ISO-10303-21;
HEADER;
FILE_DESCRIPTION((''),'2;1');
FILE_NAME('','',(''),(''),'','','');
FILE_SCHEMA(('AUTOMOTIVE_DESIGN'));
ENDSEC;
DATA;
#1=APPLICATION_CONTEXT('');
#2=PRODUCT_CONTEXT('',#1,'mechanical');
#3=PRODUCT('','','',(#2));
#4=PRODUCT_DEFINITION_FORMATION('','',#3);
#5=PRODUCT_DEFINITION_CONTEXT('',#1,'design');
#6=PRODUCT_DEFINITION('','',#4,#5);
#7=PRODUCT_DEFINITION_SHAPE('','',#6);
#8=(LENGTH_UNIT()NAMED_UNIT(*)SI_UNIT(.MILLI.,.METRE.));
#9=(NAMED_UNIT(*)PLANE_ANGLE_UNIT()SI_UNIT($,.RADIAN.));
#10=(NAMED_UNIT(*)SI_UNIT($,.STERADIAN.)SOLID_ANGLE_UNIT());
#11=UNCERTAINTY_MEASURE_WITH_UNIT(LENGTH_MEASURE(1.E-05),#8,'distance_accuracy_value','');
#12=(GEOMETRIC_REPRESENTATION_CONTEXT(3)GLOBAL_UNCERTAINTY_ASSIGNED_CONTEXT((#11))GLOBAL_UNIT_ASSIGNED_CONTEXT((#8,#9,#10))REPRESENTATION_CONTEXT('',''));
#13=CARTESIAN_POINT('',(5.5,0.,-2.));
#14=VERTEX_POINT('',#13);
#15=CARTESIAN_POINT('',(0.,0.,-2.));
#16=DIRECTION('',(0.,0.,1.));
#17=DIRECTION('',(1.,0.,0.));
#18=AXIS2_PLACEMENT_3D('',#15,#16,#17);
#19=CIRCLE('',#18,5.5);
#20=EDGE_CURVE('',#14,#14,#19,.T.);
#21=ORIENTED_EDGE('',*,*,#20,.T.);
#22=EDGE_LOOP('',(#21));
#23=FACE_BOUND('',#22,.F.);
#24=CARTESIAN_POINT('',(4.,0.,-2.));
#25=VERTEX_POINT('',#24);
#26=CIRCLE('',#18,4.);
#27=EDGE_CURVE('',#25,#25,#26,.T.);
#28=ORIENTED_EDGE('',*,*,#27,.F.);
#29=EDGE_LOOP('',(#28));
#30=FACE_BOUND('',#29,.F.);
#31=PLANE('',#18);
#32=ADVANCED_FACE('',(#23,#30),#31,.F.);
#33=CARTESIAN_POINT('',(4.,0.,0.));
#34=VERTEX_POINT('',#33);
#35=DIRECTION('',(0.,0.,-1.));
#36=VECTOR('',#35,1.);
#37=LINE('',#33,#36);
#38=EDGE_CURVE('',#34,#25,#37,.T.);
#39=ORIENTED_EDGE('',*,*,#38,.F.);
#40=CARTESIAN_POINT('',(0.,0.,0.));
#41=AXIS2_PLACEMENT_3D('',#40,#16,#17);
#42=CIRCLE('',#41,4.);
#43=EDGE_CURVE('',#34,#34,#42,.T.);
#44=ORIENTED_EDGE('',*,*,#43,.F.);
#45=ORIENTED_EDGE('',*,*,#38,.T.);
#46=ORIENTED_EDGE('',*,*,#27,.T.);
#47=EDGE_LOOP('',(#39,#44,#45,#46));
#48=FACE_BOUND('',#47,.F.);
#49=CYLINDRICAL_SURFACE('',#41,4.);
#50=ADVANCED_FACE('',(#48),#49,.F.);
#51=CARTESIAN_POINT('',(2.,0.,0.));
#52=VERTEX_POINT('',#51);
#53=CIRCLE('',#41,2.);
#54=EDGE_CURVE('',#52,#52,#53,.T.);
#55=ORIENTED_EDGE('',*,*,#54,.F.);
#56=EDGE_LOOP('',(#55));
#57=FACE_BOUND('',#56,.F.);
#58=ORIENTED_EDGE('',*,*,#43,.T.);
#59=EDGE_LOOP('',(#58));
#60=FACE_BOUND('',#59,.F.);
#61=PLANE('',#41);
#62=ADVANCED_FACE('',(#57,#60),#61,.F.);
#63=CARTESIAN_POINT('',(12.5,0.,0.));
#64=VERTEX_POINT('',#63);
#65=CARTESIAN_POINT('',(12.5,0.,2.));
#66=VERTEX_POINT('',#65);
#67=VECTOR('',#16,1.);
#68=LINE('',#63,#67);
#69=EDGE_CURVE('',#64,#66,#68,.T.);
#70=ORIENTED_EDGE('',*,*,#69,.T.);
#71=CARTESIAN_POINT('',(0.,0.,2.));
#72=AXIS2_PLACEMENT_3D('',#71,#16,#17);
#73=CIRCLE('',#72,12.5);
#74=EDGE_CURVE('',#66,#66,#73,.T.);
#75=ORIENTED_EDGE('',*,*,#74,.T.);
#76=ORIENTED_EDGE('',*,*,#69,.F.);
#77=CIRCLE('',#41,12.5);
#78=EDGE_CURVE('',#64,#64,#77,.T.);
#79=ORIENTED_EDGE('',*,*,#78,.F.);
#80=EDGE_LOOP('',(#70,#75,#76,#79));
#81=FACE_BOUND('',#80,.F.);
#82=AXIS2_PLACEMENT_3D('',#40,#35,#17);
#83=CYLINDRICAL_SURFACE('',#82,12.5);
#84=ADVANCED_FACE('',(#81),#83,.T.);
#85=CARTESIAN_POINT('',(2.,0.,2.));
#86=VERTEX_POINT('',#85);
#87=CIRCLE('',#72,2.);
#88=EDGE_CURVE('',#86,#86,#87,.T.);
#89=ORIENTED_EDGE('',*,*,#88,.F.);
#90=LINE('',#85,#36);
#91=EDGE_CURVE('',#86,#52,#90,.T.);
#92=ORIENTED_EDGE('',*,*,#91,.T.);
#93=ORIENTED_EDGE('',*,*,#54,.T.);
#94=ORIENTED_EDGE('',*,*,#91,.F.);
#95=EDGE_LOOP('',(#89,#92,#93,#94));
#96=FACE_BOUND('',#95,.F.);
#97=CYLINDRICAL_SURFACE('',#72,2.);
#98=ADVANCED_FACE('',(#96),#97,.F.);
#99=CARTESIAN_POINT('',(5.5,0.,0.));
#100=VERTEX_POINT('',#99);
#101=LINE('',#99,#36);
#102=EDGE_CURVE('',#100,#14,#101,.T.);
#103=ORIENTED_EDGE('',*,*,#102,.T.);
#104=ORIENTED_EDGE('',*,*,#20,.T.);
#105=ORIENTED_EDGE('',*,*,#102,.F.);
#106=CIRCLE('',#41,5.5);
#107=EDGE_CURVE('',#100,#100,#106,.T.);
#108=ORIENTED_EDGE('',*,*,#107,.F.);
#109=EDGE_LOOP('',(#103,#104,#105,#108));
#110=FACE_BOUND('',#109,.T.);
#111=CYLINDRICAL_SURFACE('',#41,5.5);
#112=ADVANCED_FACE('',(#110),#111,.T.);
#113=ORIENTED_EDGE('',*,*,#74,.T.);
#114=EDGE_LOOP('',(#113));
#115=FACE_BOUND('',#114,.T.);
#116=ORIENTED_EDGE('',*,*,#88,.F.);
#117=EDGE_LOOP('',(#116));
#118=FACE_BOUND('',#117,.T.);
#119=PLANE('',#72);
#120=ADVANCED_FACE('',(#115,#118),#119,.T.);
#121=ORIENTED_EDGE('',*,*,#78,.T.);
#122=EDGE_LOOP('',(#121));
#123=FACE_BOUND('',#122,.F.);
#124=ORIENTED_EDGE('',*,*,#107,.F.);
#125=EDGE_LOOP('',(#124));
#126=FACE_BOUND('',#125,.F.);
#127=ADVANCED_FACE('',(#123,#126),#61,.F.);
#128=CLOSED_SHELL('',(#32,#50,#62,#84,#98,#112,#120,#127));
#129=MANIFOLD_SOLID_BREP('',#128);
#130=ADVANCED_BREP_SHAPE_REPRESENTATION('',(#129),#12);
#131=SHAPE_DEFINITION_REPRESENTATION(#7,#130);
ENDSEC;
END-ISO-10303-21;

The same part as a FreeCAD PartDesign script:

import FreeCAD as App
import Part
import Sketcher
from FreeCAD import Vector
Q = App.Units.Quantity

doc = App.newDocument("Part")
body = doc.addObject("PartDesign::Body", "Body")

# Sketch on XY plane
sketch1 = body.newObject("Sketcher::SketchObject", "Sketch")
sketch1.AttachmentSupport = (doc.getObject("XY_Plane"), [""])
sketch1.MapMode = "FlatFace"
sketch1.addGeometry(Part.Circle(Vector(0, 0, 0), Vector(0, 0, 1), 5.5), False)
sketch1.addGeometry(Part.Circle(Vector(0, 0, 0), Vector(0, 0, 1), 4), False)
sketch1.addConstraint(Sketcher.Constraint("Coincident", 0, 3, -1, 1))
sketch1.addConstraint(Sketcher.Constraint("Coincident", 1, 3, -1, 1))
sketch1.addConstraint(Sketcher.Constraint("Diameter", 0, Q("11 mm")))
sketch1.addConstraint(Sketcher.Constraint("Diameter", 1, Q("8 mm")))
pad1 = body.newObject("PartDesign::Pad", "Pad")
pad1.Profile = sketch1
pad1.Length = 2
pad1.Reversed = True

# Sketch on XY plane
sketch2 = body.newObject("Sketcher::SketchObject", "Sketch001")
sketch2.AttachmentSupport = (doc.getObject("XY_Plane"), [""])
sketch2.MapMode = "FlatFace"
sketch2.addGeometry(Part.Circle(Vector(0, 0, 0), Vector(0, 0, 1), 12.5), False)
sketch2.addConstraint(Sketcher.Constraint("Coincident", 0, 3, -1, 1))
sketch2.addConstraint(Sketcher.Constraint("Diameter", 0, Q("25 mm")))
pad2 = body.newObject("PartDesign::Pad", "Pad001")
pad2.Profile = sketch2
pad2.Length = 2

# Sketch on XY plane
sketch3 = body.newObject("Sketcher::SketchObject", "Sketch002")
sketch3.AttachmentSupport = (doc.getObject("XY_Plane"), [""])
sketch3.MapMode = "FlatFace"
sketch3.AttachmentOffset = App.Placement(Vector(0, 0, 2), App.Rotation())
sketch3.addGeometry(Part.Circle(Vector(0, 0, 0), Vector(0, 0, 1), 2), False)
sketch3.addConstraint(Sketcher.Constraint("Coincident", 0, 3, -1, 1))
sketch3.addConstraint(Sketcher.Constraint("Diameter", 0, Q("4 mm")))
pocket1 = body.newObject("PartDesign::Pocket", "Pocket")
pocket1.Profile = sketch3
pocket1.Type = "UpToFirst"

doc.recompute()
